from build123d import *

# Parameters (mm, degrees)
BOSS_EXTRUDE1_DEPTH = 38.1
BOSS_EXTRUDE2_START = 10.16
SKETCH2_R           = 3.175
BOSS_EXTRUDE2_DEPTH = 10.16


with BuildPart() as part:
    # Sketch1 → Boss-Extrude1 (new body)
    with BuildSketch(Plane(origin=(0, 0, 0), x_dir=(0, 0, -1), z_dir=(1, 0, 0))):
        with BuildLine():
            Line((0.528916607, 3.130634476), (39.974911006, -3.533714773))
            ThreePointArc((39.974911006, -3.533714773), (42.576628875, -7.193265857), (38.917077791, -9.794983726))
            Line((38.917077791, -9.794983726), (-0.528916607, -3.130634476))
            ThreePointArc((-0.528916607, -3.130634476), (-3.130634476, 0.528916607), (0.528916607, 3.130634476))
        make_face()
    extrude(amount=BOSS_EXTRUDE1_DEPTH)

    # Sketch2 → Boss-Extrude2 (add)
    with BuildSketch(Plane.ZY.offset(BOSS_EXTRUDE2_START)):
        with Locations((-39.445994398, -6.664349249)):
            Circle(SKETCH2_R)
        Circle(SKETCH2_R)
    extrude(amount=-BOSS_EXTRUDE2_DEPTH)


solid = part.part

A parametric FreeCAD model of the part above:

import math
import FreeCAD as App
import Part
import Sketcher
from FreeCAD import Vector
Q = App.Units.Quantity

doc = App.newDocument("Part")
body = doc.addObject("PartDesign::Body", "Body")

sketch1 = doc.addObject("Sketcher::SketchObject", "Sketch")
body.addObject(sketch1)
sketch1.AttachmentSupport = (doc.YZ_Plane, [""])
sketch1.MapMode = "FlatFace"
sketch1.addGeometry([
    Part.LineSegment(Vector(-3.5, -40, 0), Vector(3.1, -0.5, 0)),
    Part.ArcOfCircle(Part.Circle(Vector(0, 0, 0), Vector(0, 0, 1), 3.2), math.radians(-10), math.radians(170)),
    Part.LineSegment(Vector(-3.1, 0.5, 0), Vector(-9.8, -38.9, 0)),
    Part.ArcOfCircle(Part.Circle(Vector(-6.7, -39.4, 0), Vector(0, 0, 1), 3.2), math.radians(170), math.radians(350)),
], False)
sketch1.addConstraint([
    Sketcher.Constraint("Tangent", 0, 2, 1, 1),
    Sketcher.Constraint("Tangent", 1, 2, 2, 1),
    Sketcher.Constraint("Tangent", 2, 2, 3, 1),
    Sketcher.Constraint("Tangent", 3, 2, 0, 1),
    Sketcher.Constraint("Coincident", 1, 3, -1, 1),
    Sketcher.Constraint("Equal", 1, 3),
    Sketcher.Constraint("Radius", 1, Q("0.125 in")),
    Sketcher.Constraint("Distance", 0, Q("1.575 in")),
    Sketcher.Constraint("DistanceX", 3, 3, -1, 1, Q("6.664349 mm")),
])
pad1 = doc.addObject("PartDesign::Pad", "Pad")
body.addObject(pad1)
pad1.Profile = sketch1
pad1.Length = Q("1.5 in")

sketch2 = doc.addObject("Sketcher::SketchObject", "Sketch001")
body.addObject(sketch2)
sketch2.AttachmentSupport = (doc.YZ_Plane, [""])
sketch2.MapMode = "FlatFace"
sketch2.AttachmentOffset = App.Placement(Vector(0, 0, -0.4 * 25.4), App.Rotation())
sketch2.addGeometry([
    Part.Circle(Vector(-6.7, -39.4, 0), Vector(0, 0, 1), 3.2),
    Part.Circle(Vector(0, 0, 0), Vector(0, 0, 1), 3.2),
], False)
sketch2.addConstraint([
    Sketcher.Constraint("Coincident", 1, 3, -1, 1),
    Sketcher.Constraint("Equal", 0, 1),
    Sketcher.Constraint("Diameter", 0, Q("0.25 in")),
    Sketcher.Constraint("DistanceX", 0, 3, -1, 1, Q("6.664349 mm")),
    Sketcher.Constraint("DistanceY", 0, 3, -1, 1, Q("39.445994 mm")),
])
pad2 = doc.addObject("PartDesign::Pad", "Pad001")
body.addObject(pad2)
pad2.Profile = sketch2
pad2.Length = Q("0.4 in")

doc.recompute()
